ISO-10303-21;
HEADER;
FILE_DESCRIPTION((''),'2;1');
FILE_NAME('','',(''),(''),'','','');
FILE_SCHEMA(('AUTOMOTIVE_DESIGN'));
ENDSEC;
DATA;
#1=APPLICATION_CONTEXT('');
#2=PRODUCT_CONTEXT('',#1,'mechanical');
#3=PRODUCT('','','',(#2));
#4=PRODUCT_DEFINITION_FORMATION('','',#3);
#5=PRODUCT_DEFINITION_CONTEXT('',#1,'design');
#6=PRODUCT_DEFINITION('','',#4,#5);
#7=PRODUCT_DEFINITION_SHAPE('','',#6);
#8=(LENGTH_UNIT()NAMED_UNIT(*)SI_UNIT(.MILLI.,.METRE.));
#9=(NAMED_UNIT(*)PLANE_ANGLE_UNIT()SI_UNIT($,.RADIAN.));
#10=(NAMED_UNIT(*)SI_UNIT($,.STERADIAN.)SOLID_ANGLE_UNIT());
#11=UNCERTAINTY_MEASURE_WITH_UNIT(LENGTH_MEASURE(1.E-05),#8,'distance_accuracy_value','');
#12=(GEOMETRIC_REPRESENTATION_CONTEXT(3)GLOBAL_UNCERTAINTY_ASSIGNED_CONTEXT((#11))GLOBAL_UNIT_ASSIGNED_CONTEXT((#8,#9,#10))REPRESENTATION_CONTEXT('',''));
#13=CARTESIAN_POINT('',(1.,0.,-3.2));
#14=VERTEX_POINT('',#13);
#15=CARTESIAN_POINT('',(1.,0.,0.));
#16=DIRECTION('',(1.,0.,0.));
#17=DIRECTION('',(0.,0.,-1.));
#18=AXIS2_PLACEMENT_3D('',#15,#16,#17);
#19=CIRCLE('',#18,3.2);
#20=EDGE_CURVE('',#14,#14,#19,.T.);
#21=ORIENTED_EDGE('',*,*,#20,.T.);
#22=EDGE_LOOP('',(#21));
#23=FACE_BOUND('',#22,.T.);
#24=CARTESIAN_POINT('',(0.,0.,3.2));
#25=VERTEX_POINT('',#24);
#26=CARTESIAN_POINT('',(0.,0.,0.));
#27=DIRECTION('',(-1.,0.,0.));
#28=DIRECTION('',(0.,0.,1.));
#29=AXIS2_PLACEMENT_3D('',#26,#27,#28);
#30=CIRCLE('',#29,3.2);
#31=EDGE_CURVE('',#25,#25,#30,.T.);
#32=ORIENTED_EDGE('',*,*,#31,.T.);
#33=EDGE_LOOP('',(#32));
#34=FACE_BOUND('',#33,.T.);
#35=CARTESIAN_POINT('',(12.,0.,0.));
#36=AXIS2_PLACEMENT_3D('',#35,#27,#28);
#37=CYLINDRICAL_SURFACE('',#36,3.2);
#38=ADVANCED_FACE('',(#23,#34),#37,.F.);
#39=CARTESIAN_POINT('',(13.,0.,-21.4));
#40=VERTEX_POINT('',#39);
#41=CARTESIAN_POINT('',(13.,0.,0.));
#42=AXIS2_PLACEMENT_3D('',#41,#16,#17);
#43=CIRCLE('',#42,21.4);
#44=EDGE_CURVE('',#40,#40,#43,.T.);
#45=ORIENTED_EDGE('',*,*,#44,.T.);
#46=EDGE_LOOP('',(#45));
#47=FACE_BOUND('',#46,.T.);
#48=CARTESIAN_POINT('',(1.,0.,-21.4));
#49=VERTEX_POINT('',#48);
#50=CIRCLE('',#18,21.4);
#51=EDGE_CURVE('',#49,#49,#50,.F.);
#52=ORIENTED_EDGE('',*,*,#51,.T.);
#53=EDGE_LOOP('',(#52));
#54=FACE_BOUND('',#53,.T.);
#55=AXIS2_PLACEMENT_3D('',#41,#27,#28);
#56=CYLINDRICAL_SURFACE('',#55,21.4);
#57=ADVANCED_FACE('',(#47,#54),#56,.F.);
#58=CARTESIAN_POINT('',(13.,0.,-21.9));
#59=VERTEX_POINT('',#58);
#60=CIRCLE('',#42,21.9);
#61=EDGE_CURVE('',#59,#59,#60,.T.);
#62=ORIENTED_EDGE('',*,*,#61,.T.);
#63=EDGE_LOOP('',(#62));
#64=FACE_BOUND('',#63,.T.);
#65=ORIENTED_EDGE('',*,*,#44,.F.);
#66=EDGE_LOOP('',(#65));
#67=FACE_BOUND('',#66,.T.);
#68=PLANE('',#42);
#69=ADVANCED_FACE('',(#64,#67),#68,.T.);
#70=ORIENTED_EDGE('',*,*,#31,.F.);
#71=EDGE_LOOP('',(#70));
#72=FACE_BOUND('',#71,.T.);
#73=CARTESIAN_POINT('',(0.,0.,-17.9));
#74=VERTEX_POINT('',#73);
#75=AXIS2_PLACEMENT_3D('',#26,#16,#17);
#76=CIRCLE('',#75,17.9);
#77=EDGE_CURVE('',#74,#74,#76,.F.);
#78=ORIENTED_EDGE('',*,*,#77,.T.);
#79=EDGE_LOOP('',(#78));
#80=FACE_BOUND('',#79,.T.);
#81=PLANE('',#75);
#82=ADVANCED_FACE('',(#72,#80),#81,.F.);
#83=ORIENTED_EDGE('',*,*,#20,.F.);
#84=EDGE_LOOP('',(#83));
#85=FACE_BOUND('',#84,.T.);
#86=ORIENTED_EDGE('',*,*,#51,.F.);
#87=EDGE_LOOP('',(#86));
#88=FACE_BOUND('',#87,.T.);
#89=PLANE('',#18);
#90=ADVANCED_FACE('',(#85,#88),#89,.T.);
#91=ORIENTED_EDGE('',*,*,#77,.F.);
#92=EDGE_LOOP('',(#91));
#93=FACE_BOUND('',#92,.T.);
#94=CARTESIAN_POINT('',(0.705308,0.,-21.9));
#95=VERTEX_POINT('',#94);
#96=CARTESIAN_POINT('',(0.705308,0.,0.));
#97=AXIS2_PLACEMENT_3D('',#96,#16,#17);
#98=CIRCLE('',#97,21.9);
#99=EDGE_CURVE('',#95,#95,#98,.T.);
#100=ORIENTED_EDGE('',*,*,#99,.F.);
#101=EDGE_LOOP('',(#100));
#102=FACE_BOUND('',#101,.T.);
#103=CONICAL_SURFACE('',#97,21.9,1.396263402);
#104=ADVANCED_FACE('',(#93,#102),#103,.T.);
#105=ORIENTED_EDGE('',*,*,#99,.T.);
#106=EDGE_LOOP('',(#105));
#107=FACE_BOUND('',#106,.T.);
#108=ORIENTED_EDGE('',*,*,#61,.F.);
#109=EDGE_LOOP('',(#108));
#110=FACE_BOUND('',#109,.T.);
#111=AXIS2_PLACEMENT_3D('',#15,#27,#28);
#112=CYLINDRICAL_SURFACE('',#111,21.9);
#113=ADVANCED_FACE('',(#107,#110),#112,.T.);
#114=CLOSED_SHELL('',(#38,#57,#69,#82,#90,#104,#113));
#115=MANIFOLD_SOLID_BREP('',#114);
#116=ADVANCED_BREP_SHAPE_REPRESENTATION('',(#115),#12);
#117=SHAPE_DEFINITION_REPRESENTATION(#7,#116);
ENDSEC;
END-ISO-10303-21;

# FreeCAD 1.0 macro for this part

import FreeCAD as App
import Part
import Sketcher

V = App.Vector


def edges_at(feature, points):
    """Names of the edges that pass closest to the given points."""
    edges = feature.Shape.Edges
    near = lambda p: min(range(len(edges)), key=lambda i: edges[i].distToShape(Part.Vertex(*p))[0])
    return sorted({f"Edge{near(p) + 1}" for p in points})

doc = App.newDocument("Part")
body = doc.addObject("PartDesign::Body", "Body")

sketch1 = body.newObject("Sketcher::SketchObject", "Sketch")
sketch1.AttachmentSupport = (doc.getObject("YZ_Plane"), [""])
sketch1.MapMode = "FlatFace"
sketch1.addGeometry(Part.Circle(V(0, 0, 0), V(0, 0, 1), 22), False)
sketch1.addConstraint([
    Sketcher.Constraint("Coincident", 0, 3, -1, 1),
    Sketcher.Constraint("Diameter", 0, 43.8),
])
pad1 = body.newObject("PartDesign::Pad", "Pad")
pad1.Profile = sketch1
pad1.Length = 1

sketch2 = body.newObject("Sketcher::SketchObject", "Sketch001")
sketch2.AttachmentSupport = (doc.getObject("YZ_Plane"), [""])
sketch2.MapMode = "FlatFace"
sketch2.AttachmentOffset = App.Placement(V(0, 0, 1), App.Rotation())
sketch2.addGeometry([
    Part.Circle(V(0, 0, 0), V(0, 0, 1), 22),
    Part.Circle(V(0, 0, 0), V(0, 0, 1), 21),
], False)
sketch2.addConstraint([
    Sketcher.Constraint("Coincident", 0, 3, -1, 1),
    Sketcher.Constraint("Coincident", 1, 3, -1, 1),
    Sketcher.Constraint("Diameter", 0, 43.8),
    Sketcher.Constraint("Diameter", 1, 42.8),
])
pad2 = body.newObject("PartDesign::Pad", "Pad001")
pad2.Profile = sketch2
pad2.Length = 12

sketch3 = body.newObject("Sketcher::SketchObject", "Sketch002")
sketch3.AttachmentSupport = (doc.getObject("YZ_Plane"), [""])
sketch3.MapMode = "FlatFace"
sketch3.addGeometry(Part.Circle(V(0, 0, 0), V(0, 0, 1), 3.2), False)
sketch3.addConstraint([
    Sketcher.Constraint("Coincident", 0, 3, -1, 1),
    Sketcher.Constraint("Diameter", 0, 6.4),
])
pocket1 = body.newObject("PartDesign::Pocket", "Pocket")
pocket1.Profile = sketch3
pocket1.Length = 12
pocket1.Reversed = True
doc.recompute()

chamfer = body.newObject("PartDesign::Chamfer", "Chamfer")
chamfer.Base = (pocket1, edges_at(pocket1, [(0, 0, 21.9)]))
chamfer.ChamferType = "Two distances"
chamfer.Size = 4
chamfer.Size2 = 0.705308
chamfer.FlipDirection = True

doc.recompute()
